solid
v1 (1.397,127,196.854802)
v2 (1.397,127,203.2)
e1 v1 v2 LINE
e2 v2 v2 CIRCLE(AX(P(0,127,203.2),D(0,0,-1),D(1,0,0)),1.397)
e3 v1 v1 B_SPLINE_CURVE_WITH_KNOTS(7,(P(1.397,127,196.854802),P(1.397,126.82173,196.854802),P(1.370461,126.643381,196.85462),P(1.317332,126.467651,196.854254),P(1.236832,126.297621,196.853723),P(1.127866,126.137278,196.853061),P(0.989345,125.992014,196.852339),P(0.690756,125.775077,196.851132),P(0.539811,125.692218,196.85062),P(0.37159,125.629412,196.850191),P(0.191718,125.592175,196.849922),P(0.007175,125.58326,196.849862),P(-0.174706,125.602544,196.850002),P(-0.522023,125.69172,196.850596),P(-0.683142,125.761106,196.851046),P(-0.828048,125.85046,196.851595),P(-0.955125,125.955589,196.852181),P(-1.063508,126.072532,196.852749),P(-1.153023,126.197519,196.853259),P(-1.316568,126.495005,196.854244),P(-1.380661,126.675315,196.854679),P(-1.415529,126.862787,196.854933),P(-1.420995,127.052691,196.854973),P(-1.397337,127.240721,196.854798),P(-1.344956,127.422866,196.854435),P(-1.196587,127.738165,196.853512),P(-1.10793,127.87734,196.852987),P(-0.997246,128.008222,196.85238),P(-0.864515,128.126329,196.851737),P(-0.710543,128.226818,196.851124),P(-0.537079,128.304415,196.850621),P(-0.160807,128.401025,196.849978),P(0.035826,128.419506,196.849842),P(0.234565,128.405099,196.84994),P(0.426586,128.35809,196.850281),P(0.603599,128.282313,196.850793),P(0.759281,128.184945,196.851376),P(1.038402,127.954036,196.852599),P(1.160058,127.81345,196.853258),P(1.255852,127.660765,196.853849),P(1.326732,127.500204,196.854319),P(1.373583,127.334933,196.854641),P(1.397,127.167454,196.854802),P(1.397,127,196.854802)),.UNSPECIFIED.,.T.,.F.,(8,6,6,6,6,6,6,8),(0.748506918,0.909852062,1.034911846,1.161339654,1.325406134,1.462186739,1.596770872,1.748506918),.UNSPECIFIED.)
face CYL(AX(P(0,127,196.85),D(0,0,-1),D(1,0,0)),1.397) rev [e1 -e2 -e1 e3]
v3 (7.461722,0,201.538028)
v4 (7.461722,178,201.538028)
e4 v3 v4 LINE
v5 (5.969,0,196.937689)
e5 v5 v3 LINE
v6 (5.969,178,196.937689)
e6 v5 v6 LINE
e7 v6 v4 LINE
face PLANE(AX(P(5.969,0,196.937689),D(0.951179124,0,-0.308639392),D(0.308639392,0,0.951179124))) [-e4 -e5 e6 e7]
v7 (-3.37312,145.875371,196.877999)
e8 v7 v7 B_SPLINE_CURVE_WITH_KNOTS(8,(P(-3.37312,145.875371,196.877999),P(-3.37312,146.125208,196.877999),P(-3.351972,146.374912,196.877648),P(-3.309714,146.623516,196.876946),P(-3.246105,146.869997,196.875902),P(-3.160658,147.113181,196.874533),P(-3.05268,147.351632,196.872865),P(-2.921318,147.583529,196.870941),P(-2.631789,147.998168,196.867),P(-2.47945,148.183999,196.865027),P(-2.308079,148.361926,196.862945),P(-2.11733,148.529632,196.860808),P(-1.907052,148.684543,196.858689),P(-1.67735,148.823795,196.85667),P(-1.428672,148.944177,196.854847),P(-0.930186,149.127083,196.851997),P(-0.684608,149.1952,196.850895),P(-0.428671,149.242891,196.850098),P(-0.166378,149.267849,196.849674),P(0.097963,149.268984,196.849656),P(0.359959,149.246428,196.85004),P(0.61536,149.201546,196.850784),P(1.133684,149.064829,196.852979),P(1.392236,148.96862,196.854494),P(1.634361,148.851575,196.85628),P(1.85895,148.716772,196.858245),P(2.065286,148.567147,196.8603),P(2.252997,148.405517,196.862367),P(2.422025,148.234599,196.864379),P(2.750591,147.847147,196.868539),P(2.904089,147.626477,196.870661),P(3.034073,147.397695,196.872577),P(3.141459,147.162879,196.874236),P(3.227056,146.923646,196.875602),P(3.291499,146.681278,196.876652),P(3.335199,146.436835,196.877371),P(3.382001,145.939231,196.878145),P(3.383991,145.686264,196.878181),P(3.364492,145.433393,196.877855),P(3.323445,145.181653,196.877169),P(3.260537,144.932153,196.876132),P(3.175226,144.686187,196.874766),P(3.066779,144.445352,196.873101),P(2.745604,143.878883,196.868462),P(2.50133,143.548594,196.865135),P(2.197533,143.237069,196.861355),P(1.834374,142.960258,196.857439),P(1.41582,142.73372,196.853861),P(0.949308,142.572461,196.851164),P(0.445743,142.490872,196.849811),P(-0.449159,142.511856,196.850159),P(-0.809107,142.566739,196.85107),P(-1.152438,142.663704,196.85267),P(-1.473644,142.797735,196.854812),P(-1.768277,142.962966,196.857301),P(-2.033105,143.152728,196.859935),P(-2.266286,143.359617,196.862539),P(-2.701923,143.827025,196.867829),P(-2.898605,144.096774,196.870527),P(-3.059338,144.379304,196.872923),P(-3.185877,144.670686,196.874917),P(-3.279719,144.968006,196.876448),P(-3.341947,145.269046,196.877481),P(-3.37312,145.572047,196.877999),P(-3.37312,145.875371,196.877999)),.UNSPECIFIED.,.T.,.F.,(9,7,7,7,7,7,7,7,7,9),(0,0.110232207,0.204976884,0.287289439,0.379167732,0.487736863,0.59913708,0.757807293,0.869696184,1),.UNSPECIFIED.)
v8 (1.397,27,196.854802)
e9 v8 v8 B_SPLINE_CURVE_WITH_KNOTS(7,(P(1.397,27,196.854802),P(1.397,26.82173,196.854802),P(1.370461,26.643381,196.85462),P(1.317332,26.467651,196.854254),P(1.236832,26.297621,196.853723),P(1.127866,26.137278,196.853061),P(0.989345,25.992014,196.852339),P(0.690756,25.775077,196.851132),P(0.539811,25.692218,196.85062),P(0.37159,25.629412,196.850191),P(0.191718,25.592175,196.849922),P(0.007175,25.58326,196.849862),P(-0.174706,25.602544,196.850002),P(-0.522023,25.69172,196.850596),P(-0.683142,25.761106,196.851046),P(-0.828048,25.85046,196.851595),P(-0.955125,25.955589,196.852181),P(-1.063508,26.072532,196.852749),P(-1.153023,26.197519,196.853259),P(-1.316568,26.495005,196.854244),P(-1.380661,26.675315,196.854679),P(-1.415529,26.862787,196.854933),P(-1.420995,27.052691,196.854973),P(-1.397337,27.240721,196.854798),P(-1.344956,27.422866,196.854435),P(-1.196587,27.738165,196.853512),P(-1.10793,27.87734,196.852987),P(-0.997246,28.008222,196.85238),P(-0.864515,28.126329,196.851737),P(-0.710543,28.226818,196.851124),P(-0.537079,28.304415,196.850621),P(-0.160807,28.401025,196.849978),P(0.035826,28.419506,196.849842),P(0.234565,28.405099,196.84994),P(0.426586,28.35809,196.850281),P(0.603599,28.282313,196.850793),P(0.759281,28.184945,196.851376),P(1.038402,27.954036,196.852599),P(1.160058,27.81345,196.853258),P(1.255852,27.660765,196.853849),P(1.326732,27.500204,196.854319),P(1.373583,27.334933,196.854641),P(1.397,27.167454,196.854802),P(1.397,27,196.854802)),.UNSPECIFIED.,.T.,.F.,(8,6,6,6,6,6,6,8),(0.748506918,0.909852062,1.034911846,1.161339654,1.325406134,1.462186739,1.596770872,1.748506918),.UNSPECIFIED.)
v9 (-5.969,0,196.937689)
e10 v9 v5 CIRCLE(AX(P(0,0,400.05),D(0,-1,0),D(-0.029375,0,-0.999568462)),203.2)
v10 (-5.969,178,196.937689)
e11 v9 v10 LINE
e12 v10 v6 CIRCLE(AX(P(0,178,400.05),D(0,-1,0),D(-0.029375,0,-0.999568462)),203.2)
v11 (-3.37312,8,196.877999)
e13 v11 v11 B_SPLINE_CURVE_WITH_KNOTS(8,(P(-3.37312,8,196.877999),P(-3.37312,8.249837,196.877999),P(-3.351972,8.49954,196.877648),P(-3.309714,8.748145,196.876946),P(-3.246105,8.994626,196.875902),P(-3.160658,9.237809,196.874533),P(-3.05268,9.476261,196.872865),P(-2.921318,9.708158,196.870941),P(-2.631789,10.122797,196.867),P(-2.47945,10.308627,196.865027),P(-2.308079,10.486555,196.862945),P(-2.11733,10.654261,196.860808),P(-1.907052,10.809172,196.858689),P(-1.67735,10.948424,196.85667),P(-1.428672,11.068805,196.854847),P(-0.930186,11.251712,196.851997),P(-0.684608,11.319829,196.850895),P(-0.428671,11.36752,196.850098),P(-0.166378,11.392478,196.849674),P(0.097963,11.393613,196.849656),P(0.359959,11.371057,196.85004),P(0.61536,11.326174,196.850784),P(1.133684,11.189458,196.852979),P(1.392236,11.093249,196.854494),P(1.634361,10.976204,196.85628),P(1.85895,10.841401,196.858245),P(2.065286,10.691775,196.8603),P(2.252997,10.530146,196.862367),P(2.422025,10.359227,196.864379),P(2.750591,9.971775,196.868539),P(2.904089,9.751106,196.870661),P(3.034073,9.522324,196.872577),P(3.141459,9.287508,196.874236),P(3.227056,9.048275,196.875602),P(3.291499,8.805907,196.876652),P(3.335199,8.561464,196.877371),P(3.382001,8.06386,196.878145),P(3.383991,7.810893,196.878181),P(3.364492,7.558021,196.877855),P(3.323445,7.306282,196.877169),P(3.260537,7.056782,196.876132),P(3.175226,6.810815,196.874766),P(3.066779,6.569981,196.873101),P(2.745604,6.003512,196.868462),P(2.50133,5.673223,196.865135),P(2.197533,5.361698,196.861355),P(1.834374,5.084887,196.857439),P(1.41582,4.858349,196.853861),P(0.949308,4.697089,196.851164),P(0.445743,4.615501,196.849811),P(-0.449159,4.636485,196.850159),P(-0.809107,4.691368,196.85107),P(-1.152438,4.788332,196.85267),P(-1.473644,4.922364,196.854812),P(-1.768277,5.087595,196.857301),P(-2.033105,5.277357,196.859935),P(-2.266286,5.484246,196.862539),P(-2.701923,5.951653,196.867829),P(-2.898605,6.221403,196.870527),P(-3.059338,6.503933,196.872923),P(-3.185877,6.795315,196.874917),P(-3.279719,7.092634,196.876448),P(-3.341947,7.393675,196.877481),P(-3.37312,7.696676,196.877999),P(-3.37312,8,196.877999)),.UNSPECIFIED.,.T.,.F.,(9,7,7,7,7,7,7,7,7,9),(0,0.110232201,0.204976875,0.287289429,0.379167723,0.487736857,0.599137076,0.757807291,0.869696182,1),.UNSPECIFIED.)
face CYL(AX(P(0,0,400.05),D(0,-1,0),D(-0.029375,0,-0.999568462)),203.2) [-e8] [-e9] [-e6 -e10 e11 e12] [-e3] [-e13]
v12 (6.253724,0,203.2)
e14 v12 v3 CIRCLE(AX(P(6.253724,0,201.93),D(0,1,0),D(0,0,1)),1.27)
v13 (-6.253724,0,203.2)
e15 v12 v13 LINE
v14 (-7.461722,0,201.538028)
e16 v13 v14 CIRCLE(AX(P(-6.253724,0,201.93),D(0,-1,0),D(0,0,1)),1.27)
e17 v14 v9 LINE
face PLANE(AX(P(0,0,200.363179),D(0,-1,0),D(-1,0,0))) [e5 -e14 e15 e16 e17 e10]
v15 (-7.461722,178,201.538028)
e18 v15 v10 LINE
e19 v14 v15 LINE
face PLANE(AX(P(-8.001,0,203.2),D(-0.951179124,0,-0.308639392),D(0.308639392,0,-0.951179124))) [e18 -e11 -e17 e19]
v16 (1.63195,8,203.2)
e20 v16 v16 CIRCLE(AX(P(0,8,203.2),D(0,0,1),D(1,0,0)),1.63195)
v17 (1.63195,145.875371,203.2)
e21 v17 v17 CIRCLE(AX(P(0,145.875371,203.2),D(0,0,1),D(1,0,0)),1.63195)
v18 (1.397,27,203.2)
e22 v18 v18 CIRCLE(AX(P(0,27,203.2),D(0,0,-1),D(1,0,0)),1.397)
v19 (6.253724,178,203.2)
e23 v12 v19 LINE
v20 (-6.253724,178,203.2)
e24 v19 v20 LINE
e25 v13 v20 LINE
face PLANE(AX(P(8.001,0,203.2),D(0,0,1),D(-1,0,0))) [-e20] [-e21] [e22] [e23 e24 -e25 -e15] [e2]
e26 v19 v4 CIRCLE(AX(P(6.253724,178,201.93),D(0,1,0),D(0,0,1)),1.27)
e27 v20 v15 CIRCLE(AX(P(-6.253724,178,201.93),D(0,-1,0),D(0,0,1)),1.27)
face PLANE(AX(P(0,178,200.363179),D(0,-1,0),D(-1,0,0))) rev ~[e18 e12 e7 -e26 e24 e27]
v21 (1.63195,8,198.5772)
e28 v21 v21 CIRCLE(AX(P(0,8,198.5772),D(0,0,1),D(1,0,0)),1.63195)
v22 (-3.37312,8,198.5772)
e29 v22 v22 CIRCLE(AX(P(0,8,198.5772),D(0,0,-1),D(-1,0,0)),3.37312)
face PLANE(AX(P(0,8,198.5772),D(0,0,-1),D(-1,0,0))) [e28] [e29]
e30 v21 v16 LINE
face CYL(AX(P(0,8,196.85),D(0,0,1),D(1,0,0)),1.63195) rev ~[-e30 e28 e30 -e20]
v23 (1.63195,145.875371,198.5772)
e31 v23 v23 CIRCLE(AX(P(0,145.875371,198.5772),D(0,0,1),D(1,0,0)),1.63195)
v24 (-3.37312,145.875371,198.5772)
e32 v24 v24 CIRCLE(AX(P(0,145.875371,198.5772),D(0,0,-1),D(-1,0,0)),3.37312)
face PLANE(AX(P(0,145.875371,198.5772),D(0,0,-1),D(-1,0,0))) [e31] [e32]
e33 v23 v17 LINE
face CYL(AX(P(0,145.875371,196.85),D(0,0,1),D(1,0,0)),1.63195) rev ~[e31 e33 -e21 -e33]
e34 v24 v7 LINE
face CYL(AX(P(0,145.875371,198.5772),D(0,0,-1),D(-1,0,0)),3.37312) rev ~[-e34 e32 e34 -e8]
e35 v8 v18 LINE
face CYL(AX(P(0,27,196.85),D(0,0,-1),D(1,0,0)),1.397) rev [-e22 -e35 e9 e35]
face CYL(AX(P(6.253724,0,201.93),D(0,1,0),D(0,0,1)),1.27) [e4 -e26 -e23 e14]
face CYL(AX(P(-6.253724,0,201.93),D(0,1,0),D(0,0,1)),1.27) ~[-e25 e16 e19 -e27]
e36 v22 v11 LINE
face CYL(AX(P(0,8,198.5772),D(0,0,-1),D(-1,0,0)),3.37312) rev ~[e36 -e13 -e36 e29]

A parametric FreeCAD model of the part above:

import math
import FreeCAD as App
import Part
import Sketcher
from FreeCAD import Vector
Q = App.Units.Quantity


def edges_at(feature, points):
    """Names of the edges that pass closest to the given points."""
    edges = feature.Shape.Edges
    near = lambda p: min(range(len(edges)), key=lambda i: edges[i].distToShape(Part.Vertex(*p))[0])
    return sorted({f"Edge{near(p) + 1}" for p in points})

doc = App.newDocument("Part")
body = doc.addObject("PartDesign::Body", "Body")

# Sketch on XZ plane
sketch1 = doc.addObject("Sketcher::SketchObject", "Sketch")
body.addObject(sketch1)
sketch1.AttachmentSupport = (doc.XZ_Plane, [""])
sketch1.MapMode = "FlatFace"
sketch1.addGeometry([
    Part.LineSegment(Vector(-8.001, 203.2, 0), Vector(8.001, 203.2, 0)),
    Part.LineSegment(Vector(8.001, 203.2, 0), Vector(5.969, 196.937689, 0)),
    Part.ArcOfCircle(Part.Circle(Vector(0, 400.05, 0), Vector(0, 0, 1), 203.2), math.radians(-91.683306), math.radians(-88.316694)),
    Part.LineSegment(Vector(-5.969, 196.937689, 0), Vector(-8.001, 203.2, 0)),
], False)
sketch1.addConstraint([
    Sketcher.Constraint("Coincident", 0, 2, 1, 1),
    Sketcher.Constraint("Coincident", 1, 2, 2, 2),
    Sketcher.Constraint("Coincident", 2, 1, 3, 1),
    Sketcher.Constraint("Coincident", 3, 2, 0, 1),
    Sketcher.Constraint("Horizontal", 0),
    Sketcher.Constraint("Symmetric", 1, 2, 2, 1, -2),
    Sketcher.Constraint("Equal", 1, 3),
    Sketcher.Constraint("Radius", 2, Q("8 in")),
    Sketcher.Constraint("DistanceY", -1, 1, 0, 2, Q("8 in")),
    Sketcher.Constraint("DistanceX", 0, 1, 0, 2, Q("0.63 in")),
    Sketcher.Constraint("DistanceY", -1, 1, 2, 3, Q("15.75 in")),
    Sketcher.Constraint("DistanceX", 1, 2, 0, 2, Q("0.08 in")),
])
pad1 = doc.addObject("PartDesign::Pad", "Pad")
body.addObject(pad1)
pad1.Profile = sketch1
pad1.Length = 178
pad1.Reversed = True

# Sketch on XY plane
sketch2 = doc.addObject("Sketcher::SketchObject", "Sketch001")
body.addObject(sketch2)
sketch2.AttachmentSupport = (doc.XY_Plane, [""])
sketch2.MapMode = "FlatFace"
sketch2.AttachmentOffset = App.Placement(Vector(0, 0, 7.75 * 25.4), App.Rotation())
sketch2.addGeometry([
    Part.Circle(Vector(0, 8, 0), Vector(0, 0, 1), 1.63195),
    Part.Circle(Vector(0, 145.875371, 0), Vector(0, 0, 1), 1.63195),
], False)
sketch2.addConstraint([
    Sketcher.Constraint("Equal", 0, 1),
    Sketcher.Constraint("PointOnObject", 0, 3, -2),
    Sketcher.Constraint("PointOnObject", 1, 3, -2),
    Sketcher.Constraint("Diameter", 0, Q("0.1285 in")),
    Sketcher.Constraint("DistanceY", -1, 1, 0, 3, 8.0),
    Sketcher.Constraint("DistanceY", -1, 1, 1, 3, 145.875371),
])
doc.recompute()
hole = doc.addObject("PartDesign::Hole", "Hole")
body.addObject(hole)
hole.Profile = sketch2
hole.ThreadType = "None"
hole.Diameter = Q("0.1285 in")
hole.DepthType = "ThroughAll"
hole.HoleCutType = "Counterbore"
hole.HoleCutDiameter = Q("0.2656 in")
hole.HoleCutDepth = Q("0.068 in")
hole.Reversed = True

# Sketch on XY plane
sketch3 = doc.addObject("Sketcher::SketchObject", "Sketch002")
body.addObject(sketch3)
sketch3.AttachmentSupport = (doc.XY_Plane, [""])
sketch3.MapMode = "FlatFace"
sketch3.AttachmentOffset = App.Placement(Vector(0, 0, 7.75 * 25.4), App.Rotation())
sketch3.addGeometry([
    Part.Circle(Vector(0, 27, 0), Vector(0, 0, 1), 1.397),
    Part.Circle(Vector(0, 127, 0), Vector(0, 0, 1), 1.397),
], False)
sketch3.addConstraint([
    Sketcher.Constraint("Equal", 0, 1),
    Sketcher.Constraint("PointOnObject", 0, 3, -2),
    Sketcher.Constraint("PointOnObject", 1, 3, -2),
    Sketcher.Constraint("Diameter", 0, Q("0.11 in")),
    Sketcher.Constraint("DistanceY", -1, 1, 1, 3, Q("5 in")),
    Sketcher.Constraint("DistanceY", -1, 1, 0, 3, 27.0),
])
pocket1 = doc.addObject("PartDesign::Pocket", "Pocket")
body.addObject(pocket1)
pocket1.Profile = sketch3
pocket1.Type = "ThroughAll"
pocket1.Reversed = True
doc.recompute()

fillet = doc.addObject("PartDesign::Fillet", "Fillet")
body.addObject(fillet)
fillet.Base = (pocket1, edges_at(pocket1, [(8.001, 89, 203.2), (-8.001, 89, 203.2)]))
fillet.Radius = Q("0.05 in")

doc.recompute()
